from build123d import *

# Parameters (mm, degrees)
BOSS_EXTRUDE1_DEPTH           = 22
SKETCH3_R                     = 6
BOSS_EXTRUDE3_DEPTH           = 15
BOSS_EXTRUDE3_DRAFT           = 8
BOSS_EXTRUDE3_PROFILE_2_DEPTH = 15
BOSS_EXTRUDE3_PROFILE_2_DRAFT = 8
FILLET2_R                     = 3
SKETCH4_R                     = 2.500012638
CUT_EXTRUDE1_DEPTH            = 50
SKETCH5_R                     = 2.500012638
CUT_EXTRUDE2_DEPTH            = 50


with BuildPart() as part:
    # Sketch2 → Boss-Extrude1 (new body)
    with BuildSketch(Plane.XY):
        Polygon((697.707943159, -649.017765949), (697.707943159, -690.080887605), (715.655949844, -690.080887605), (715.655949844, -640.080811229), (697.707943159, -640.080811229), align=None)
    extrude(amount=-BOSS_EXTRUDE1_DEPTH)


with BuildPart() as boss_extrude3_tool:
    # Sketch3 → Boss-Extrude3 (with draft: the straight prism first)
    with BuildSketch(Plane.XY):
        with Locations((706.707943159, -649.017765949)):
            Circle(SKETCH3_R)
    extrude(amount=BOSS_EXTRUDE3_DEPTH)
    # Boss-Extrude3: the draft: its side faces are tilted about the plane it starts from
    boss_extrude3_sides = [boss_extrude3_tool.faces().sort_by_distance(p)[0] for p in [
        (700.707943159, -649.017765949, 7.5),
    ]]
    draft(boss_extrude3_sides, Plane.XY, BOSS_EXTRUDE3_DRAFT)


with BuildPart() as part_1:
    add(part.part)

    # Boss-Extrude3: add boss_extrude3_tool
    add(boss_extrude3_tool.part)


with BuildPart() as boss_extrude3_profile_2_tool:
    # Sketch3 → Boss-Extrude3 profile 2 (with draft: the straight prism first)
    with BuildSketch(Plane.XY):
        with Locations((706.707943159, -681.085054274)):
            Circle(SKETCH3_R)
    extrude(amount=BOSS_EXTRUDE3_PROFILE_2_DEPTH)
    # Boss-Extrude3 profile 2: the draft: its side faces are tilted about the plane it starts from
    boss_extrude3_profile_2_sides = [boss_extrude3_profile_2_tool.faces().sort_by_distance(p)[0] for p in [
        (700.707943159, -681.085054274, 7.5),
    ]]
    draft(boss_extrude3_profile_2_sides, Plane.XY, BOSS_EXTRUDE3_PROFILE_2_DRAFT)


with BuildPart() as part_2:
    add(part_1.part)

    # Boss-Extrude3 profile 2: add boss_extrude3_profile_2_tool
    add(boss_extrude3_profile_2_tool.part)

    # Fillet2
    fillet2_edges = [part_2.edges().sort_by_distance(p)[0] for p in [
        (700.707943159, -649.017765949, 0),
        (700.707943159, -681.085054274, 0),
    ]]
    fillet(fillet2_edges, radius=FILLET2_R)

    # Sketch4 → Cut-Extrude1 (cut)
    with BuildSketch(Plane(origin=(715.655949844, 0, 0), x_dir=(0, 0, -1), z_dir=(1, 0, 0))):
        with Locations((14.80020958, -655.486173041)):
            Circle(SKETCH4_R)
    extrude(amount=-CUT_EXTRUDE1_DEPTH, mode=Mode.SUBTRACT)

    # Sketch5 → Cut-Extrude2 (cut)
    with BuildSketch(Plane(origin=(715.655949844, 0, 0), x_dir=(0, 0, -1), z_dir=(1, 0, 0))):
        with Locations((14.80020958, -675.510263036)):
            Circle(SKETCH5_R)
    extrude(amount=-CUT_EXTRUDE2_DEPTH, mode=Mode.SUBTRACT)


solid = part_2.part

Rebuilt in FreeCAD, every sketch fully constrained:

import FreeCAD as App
import Part
import Sketcher

V = App.Vector


def edges_at(feature, points):
    """Names of the edges that pass closest to the given points."""
    edges = feature.Shape.Edges
    near = lambda p: min(range(len(edges)), key=lambda i: edges[i].distToShape(Part.Vertex(*p))[0])
    return sorted({f"Edge{near(p) + 1}" for p in points})


def faces_at(feature, points):
    """Names of the faces that lie closest to the given points."""
    faces = feature.Shape.Faces
    near = lambda p: min(range(len(faces)), key=lambda i: faces[i].distToShape(Part.Vertex(*p))[0])
    return sorted({f"Face{near(p) + 1}" for p in points})


def add_polygon(sketch, points):
    """Adds a closed chain of lines whose ends are joined by coincident constraints."""
    first, n = sketch.GeometryCount, len(points)
    for a, b in zip(points, points[1:] + points[:1]):
        sketch.addGeometry(Part.LineSegment(App.Vector(*a, 0), App.Vector(*b, 0)), False)
    for i in range(n):
        sketch.addConstraint(Sketcher.Constraint("Coincident", first + i, 2, first + (i + 1) % n, 1))

doc = App.newDocument("Part")
body = doc.addObject("PartDesign::Body", "Body")

sketch1 = body.newObject("Sketcher::SketchObject", "Sketch")
sketch1.AttachmentSupport = (doc.getObject("XY_Plane"), [""])
sketch1.MapMode = "FlatFace"
add_polygon(sketch1, [(698, -690), (716, -690), (716, -640), (698, -640)])
sketch1.addConstraint([
    Sketcher.Constraint("Horizontal", 0),
    Sketcher.Constraint("Vertical", 1),
    Sketcher.Constraint("Horizontal", 2),
    Sketcher.Constraint("Vertical", 3),
    Sketcher.Constraint("DistanceX", 0, 1, 0, 2, 17.948007),
    Sketcher.Constraint("DistanceY", 1, 1, 1, 2, 50.000076),
    Sketcher.Constraint("DistanceX", -1, 1, 0, 2, 715.65595),
    Sketcher.Constraint("DistanceY", 1, 2, -1, 1, 640.080811),
])
pad1 = body.newObject("PartDesign::Pad", "Pad")
pad1.Profile = sketch1
pad1.Length = 22
pad1.Reversed = True
body2 = doc.addObject("PartDesign::Body", "Body001")

sketch2 = body2.newObject("Sketcher::SketchObject", "Sketch001")
sketch2.AttachmentSupport = (doc.getObject("XY_Plane001"), [""])
sketch2.MapMode = "FlatFace"
sketch2.addGeometry(Part.Circle(V(707, -649, 0), V(0, 0, 1), 6), False)
sketch2.addConstraint([
    Sketcher.Constraint("Diameter", 0, 12.0),
    Sketcher.Constraint("DistanceX", -1, 1, 0, 3, 706.707943),
    Sketcher.Constraint("DistanceY", 0, 3, -1, 1, 649.017766),
])
pad2 = body2.newObject("PartDesign::Pad", "Pad001")
pad2.Profile = sketch2
pad2.Length = 15
doc.recompute()

draft = body2.newObject("PartDesign::Draft", "Draft")
draft.Base = (pad2, faces_at(pad2, [(700.708, -649.018, 7.5)]))
draft.NeutralPlane = (doc.getObject("XY_Plane001"), [""])
draft.Angle = 8
draft.Reversed = False
doc.recompute()

boolean = body.newObject("PartDesign::Boolean", "Boolean")
boolean.Type = "Fuse"
boolean.addObjects([body2])
body3 = doc.addObject("PartDesign::Body", "Body002")

sketch3 = body3.newObject("Sketcher::SketchObject", "Sketch002")
sketch3.AttachmentSupport = (doc.getObject("XY_Plane002"), [""])
sketch3.MapMode = "FlatFace"
sketch3.addGeometry(Part.Circle(V(707, -681, 0), V(0, 0, 1), 6), False)
sketch3.addConstraint([
    Sketcher.Constraint("Diameter", 0, 12.0),
    Sketcher.Constraint("DistanceX", -1, 1, 0, 3, 706.707943),
    Sketcher.Constraint("DistanceY", 0, 3, -1, 1, 681.085054),
])
pad3 = body3.newObject("PartDesign::Pad", "Pad002")
pad3.Profile = sketch3
pad3.Length = 15
doc.recompute()

draft2 = body3.newObject("PartDesign::Draft", "Draft001")
draft2.Base = (pad3, faces_at(pad3, [(700.708, -681.085, 7.5)]))
draft2.NeutralPlane = (doc.getObject("XY_Plane002"), [""])
draft2.Angle = 8
draft2.Reversed = False
doc.recompute()

boolean2 = body.newObject("PartDesign::Boolean", "Boolean001")
boolean2.Type = "Fuse"
boolean2.addObjects([body3])
doc.recompute()

fillet = body.newObject("PartDesign::Fillet", "Fillet")
fillet.Base = (boolean2, edges_at(boolean2, [(700.708, -649.018, 0), (700.708, -681.085, 0)]))
fillet.Radius = 3

sketch4 = body.newObject("Sketcher::SketchObject", "Sketch003")
sketch4.AttachmentSupport = (doc.getObject("YZ_Plane"), [""])
sketch4.MapMode = "FlatFace"
sketch4.AttachmentOffset = App.Placement(V(0, 0, 715.65595), App.Rotation())
sketch4.addGeometry(Part.Circle(V(-655.5, -14.8, 0), V(0, 0, 1), 2.5), False)
sketch4.addConstraint([
    Sketcher.Constraint("Diameter", 0, 5.000025),
    Sketcher.Constraint("DistanceY", 0, 3, -1, 1, 14.80021),
    Sketcher.Constraint("DistanceX", 0, 3, -1, 1, 655.486173),
])
pocket1 = body.newObject("PartDesign::Pocket", "Pocket")
pocket1.Profile = sketch4
pocket1.Length = 50

sketch5 = body.newObject("Sketcher::SketchObject", "Sketch004")
sketch5.AttachmentSupport = (doc.getObject("YZ_Plane"), [""])
sketch5.MapMode = "FlatFace"
sketch5.AttachmentOffset = App.Placement(V(0, 0, 715.65595), App.Rotation())
sketch5.addGeometry(Part.Circle(V(-675.5, -14.8, 0), V(0, 0, 1), 2.5), False)
sketch5.addConstraint([
    Sketcher.Constraint("Diameter", 0, 5.000025),
    Sketcher.Constraint("DistanceY", 0, 3, -1, 1, 14.80021),
    Sketcher.Constraint("DistanceX", 0, 3, -1, 1, 675.510263),
])
pocket2 = body.newObject("PartDesign::Pocket", "Pocket001")
pocket2.Profile = sketch5
pocket2.Length = 50

doc.recompute()
